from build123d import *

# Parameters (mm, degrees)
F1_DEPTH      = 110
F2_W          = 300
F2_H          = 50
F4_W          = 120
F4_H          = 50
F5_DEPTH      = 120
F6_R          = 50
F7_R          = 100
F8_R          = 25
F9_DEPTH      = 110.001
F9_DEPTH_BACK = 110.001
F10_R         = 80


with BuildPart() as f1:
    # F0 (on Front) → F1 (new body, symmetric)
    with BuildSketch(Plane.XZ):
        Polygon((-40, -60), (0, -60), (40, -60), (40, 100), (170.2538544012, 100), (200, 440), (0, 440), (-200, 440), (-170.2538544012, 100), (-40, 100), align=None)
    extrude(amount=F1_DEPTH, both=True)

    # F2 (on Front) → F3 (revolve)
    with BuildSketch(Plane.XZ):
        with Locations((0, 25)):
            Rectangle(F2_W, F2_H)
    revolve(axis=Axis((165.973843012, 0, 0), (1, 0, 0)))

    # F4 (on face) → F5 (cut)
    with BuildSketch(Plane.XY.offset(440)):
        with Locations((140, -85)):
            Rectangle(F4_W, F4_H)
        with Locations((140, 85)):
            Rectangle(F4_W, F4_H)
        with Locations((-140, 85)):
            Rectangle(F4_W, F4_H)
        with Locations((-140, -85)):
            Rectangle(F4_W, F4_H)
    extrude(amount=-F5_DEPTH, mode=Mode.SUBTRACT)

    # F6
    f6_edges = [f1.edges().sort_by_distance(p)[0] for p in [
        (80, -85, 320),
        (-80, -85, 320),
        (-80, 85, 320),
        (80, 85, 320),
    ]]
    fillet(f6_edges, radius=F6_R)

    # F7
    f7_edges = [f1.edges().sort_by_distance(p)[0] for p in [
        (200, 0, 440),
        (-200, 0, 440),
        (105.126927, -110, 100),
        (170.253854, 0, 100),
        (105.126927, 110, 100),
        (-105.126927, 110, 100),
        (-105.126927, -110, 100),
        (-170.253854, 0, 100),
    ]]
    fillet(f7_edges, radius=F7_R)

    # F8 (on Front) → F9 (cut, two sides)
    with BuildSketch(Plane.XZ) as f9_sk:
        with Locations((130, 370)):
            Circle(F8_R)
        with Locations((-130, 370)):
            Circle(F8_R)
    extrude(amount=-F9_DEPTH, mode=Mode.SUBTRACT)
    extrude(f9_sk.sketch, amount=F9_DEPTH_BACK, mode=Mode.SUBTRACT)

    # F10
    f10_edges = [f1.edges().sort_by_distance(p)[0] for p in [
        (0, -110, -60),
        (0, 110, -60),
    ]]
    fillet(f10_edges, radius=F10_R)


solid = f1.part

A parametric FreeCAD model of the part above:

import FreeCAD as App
import Part
import Sketcher
from FreeCAD import Vector
Q = App.Units.Quantity


def edges_at(feature, points):
    """Names of the edges that pass closest to the given points."""
    edges = feature.Shape.Edges
    near = lambda p: min(range(len(edges)), key=lambda i: edges[i].distToShape(Part.Vertex(*p))[0])
    return sorted({f"Edge{near(p) + 1}" for p in points})

doc = App.newDocument("Part")
body = doc.addObject("PartDesign::Body", "Body")

sketch1 = body.newObject("Sketcher::SketchObject", "Sketch")
sketch1.AttachmentSupport = (doc.getObject("XZ_Plane"), [""])
sketch1.MapMode = "FlatFace"
sketch1.addGeometry(Part.LineSegment(Vector(-40, -60, 0), Vector(40, -60, 0)), False)
sketch1.addGeometry(Part.LineSegment(Vector(40, -60, 0), Vector(40, 100, 0)), False)
sketch1.addGeometry(Part.LineSegment(Vector(40, 100, 0), Vector(170, 100, 0)), False)
sketch1.addGeometry(Part.LineSegment(Vector(170, 100, 0), Vector(200, 440, 0)), False)
sketch1.addGeometry(Part.LineSegment(Vector(200, 440, 0), Vector(-200, 440, 0)), False)
sketch1.addGeometry(Part.LineSegment(Vector(-200, 440, 0), Vector(-170, 100, 0)), False)
sketch1.addGeometry(Part.LineSegment(Vector(-170, 100, 0), Vector(-40, 100, 0)), False)
sketch1.addGeometry(Part.LineSegment(Vector(-40, 100, 0), Vector(-40, -60, 0)), False)
sketch1.addConstraint(Sketcher.Constraint("Coincident", 0, 2, 1, 1))
sketch1.addConstraint(Sketcher.Constraint("Coincident", 1, 2, 2, 1))
sketch1.addConstraint(Sketcher.Constraint("Coincident", 2, 2, 3, 1))
sketch1.addConstraint(Sketcher.Constraint("Coincident", 3, 2, 4, 1))
sketch1.addConstraint(Sketcher.Constraint("Coincident", 4, 2, 5, 1))
sketch1.addConstraint(Sketcher.Constraint("Coincident", 5, 2, 6, 1))
sketch1.addConstraint(Sketcher.Constraint("Coincident", 6, 2, 7, 1))
sketch1.addConstraint(Sketcher.Constraint("Coincident", 7, 2, 0, 1))
sketch1.addConstraint(Sketcher.Constraint("Horizontal", 0))
sketch1.addConstraint(Sketcher.Constraint("Vertical", 1))
sketch1.addConstraint(Sketcher.Constraint("Horizontal", 2))
sketch1.addConstraint(Sketcher.Constraint("Horizontal", 4))
sketch1.addConstraint(Sketcher.Constraint("Horizontal", 6))
sketch1.addConstraint(Sketcher.Constraint("Vertical", 7))
sketch1.addConstraint(Sketcher.Constraint("Symmetric", 2, 2, 5, 2, -2))
sketch1.addConstraint(Sketcher.Constraint("Equal", 2, 6))
sketch1.addConstraint(Sketcher.Constraint("Equal", 3, 5))
sketch1.addConstraint(Sketcher.Constraint("DistanceX", 0, 1, 0, 2, Q("80 mm")))
sketch1.addConstraint(Sketcher.Constraint("DistanceX", 4, 2, 4, 1, Q("400 mm")))
sketch1.addConstraint(Sketcher.Constraint("DistanceY", 1, 1, 1, 2, Q("160 mm")))
sketch1.addConstraint(Sketcher.Constraint("Angle", 3, Q("85 deg")))
sketch1.addConstraint(Sketcher.Constraint("DistanceY", 0, 2, -1, 1, Q("60 mm")))
sketch1.addConstraint(Sketcher.Constraint("DistanceY", -1, 1, 3, 2, Q("440 mm")))
pad1 = body.newObject("PartDesign::Pad", "Pad")
pad1.Profile = sketch1
pad1.Length = 220
pad1.Midplane = True

sketch2 = body.newObject("Sketcher::SketchObject", "Sketch001")
sketch2.AttachmentSupport = (doc.getObject("XZ_Plane"), [""])
sketch2.MapMode = "FlatFace"
sketch2.addGeometry(Part.LineSegment(Vector(-150, 50, 0), Vector(-150, 0, 0)), False)
sketch2.addGeometry(Part.LineSegment(Vector(-150, 0, 0), Vector(150, 0, 0)), False)
sketch2.addGeometry(Part.LineSegment(Vector(150, 0, 0), Vector(150, 50, 0)), False)
sketch2.addGeometry(Part.LineSegment(Vector(150, 50, 0), Vector(-150, 50, 0)), False)
sketch2.addConstraint(Sketcher.Constraint("Coincident", 0, 2, 1, 1))
sketch2.addConstraint(Sketcher.Constraint("Coincident", 1, 2, 2, 1))
sketch2.addConstraint(Sketcher.Constraint("Coincident", 2, 2, 3, 1))
sketch2.addConstraint(Sketcher.Constraint("Coincident", 3, 2, 0, 1))
sketch2.addConstraint(Sketcher.Constraint("Vertical", 0))
sketch2.addConstraint(Sketcher.Constraint("Horizontal", 1))
sketch2.addConstraint(Sketcher.Constraint("Vertical", 2))
sketch2.addConstraint(Sketcher.Constraint("Horizontal", 3))
sketch2.addConstraint(Sketcher.Constraint("Symmetric", 0, 2, 1, 2, -1, 1))
sketch2.addConstraint(Sketcher.Constraint("DistanceX", 1, 1, 1, 2, Q("300 mm")))
sketch2.addConstraint(Sketcher.Constraint("DistanceY", 0, 2, 0, 1, Q("50 mm")))
revolution = body.newObject("PartDesign::Revolution", "Revolution")
revolution.Profile = sketch2
revolution.ReferenceAxis = (sketch2, ["H_Axis"])
revolution.Angle = 360

sketch3 = body.newObject("Sketcher::SketchObject", "Sketch002")
sketch3.AttachmentSupport = (doc.getObject("XY_Plane"), [""])
sketch3.MapMode = "FlatFace"
sketch3.AttachmentOffset = App.Placement(Vector(0, 0, 440), App.Rotation())
sketch3.addGeometry(Part.LineSegment(Vector(80, -60, 0), Vector(80, -110, 0)), False)
sketch3.addGeometry(Part.LineSegment(Vector(80, -110, 0), Vector(200, -110, 0)), False)
sketch3.addGeometry(Part.LineSegment(Vector(200, -110, 0), Vector(200, -60, 0)), False)
sketch3.addGeometry(Part.LineSegment(Vector(200, -60, 0), Vector(80, -60, 0)), False)
sketch3.addGeometry(Part.LineSegment(Vector(80, 110, 0), Vector(80, 60, 0)), False)
sketch3.addGeometry(Part.LineSegment(Vector(80, 60, 0), Vector(200, 60, 0)), False)
sketch3.addGeometry(Part.LineSegment(Vector(200, 60, 0), Vector(200, 110, 0)), False)
sketch3.addGeometry(Part.LineSegment(Vector(200, 110, 0), Vector(80, 110, 0)), False)
sketch3.addGeometry(Part.LineSegment(Vector(-200, 110, 0), Vector(-200, 60, 0)), False)
sketch3.addGeometry(Part.LineSegment(Vector(-200, 60, 0), Vector(-80, 60, 0)), False)
sketch3.addGeometry(Part.LineSegment(Vector(-80, 60, 0), Vector(-80, 110, 0)), False)
sketch3.addGeometry(Part.LineSegment(Vector(-80, 110, 0), Vector(-200, 110, 0)), False)
sketch3.addGeometry(Part.LineSegment(Vector(-200, -60, 0), Vector(-200, -110, 0)), False)
sketch3.addGeometry(Part.LineSegment(Vector(-200, -110, 0), Vector(-80, -110, 0)), False)
sketch3.addGeometry(Part.LineSegment(Vector(-80, -110, 0), Vector(-80, -60, 0)), False)
sketch3.addGeometry(Part.LineSegment(Vector(-80, -60, 0), Vector(-200, -60, 0)), False)
sketch3.addConstraint(Sketcher.Constraint("Coincident", 0, 2, 1, 1))
sketch3.addConstraint(Sketcher.Constraint("Coincident", 1, 2, 2, 1))
sketch3.addConstraint(Sketcher.Constraint("Coincident", 2, 2, 3, 1))
sketch3.addConstraint(Sketcher.Constraint("Coincident", 3, 2, 0, 1))
sketch3.addConstraint(Sketcher.Constraint("Coincident", 4, 2, 5, 1))
sketch3.addConstraint(Sketcher.Constraint("Coincident", 5, 2, 6, 1))
sketch3.addConstraint(Sketcher.Constraint("Coincident", 6, 2, 7, 1))
sketch3.addConstraint(Sketcher.Constraint("Coincident", 7, 2, 4, 1))
sketch3.addConstraint(Sketcher.Constraint("Coincident", 8, 2, 9, 1))
sketch3.addConstraint(Sketcher.Constraint("Coincident", 9, 2, 10, 1))
sketch3.addConstraint(Sketcher.Constraint("Coincident", 10, 2, 11, 1))
sketch3.addConstraint(Sketcher.Constraint("Coincident", 11, 2, 8, 1))
sketch3.addConstraint(Sketcher.Constraint("Coincident", 12, 2, 13, 1))
sketch3.addConstraint(Sketcher.Constraint("Coincident", 13, 2, 14, 1))
sketch3.addConstraint(Sketcher.Constraint("Coincident", 14, 2, 15, 1))
sketch3.addConstraint(Sketcher.Constraint("Coincident", 15, 2, 12, 1))
sketch3.addConstraint(Sketcher.Constraint("Vertical", 0))
sketch3.addConstraint(Sketcher.Constraint("Horizontal", 1))
sketch3.addConstraint(Sketcher.Constraint("Vertical", 2))
sketch3.addConstraint(Sketcher.Constraint("Horizontal", 3))
sketch3.addConstraint(Sketcher.Constraint("Vertical", 4))
sketch3.addConstraint(Sketcher.Constraint("Horizontal", 5))
sketch3.addConstraint(Sketcher.Constraint("Vertical", 6))
sketch3.addConstraint(Sketcher.Constraint("Horizontal", 7))
sketch3.addConstraint(Sketcher.Constraint("Vertical", 8))
sketch3.addConstraint(Sketcher.Constraint("Horizontal", 9))
sketch3.addConstraint(Sketcher.Constraint("Vertical", 10))
sketch3.addConstraint(Sketcher.Constraint("Horizontal", 11))
sketch3.addConstraint(Sketcher.Constraint("Vertical", 12))
sketch3.addConstraint(Sketcher.Constraint("Horizontal", 13))
sketch3.addConstraint(Sketcher.Constraint("Vertical", 14))
sketch3.addConstraint(Sketcher.Constraint("Horizontal", 15))
sketch3.addConstraint(Sketcher.Constraint("Symmetric", 2, 2, 8, 2, -1, 1))
sketch3.addConstraint(Sketcher.Constraint("Symmetric", 0, 2, 10, 2, -1, 1))
sketch3.addConstraint(Sketcher.Constraint("Symmetric", 6, 2, 12, 2, -1, 1))
sketch3.addConstraint(Sketcher.Constraint("Symmetric", 4, 2, 14, 2, -1, 1))
sketch3.addConstraint(Sketcher.Constraint("Symmetric", 5, 2, 8, 2, -2))
sketch3.addConstraint(Sketcher.Constraint("Symmetric", 7, 2, 10, 2, -2))
sketch3.addConstraint(Sketcher.Constraint("DistanceX", 1, 1, 1, 2, Q("120 mm")))
sketch3.addConstraint(Sketcher.Constraint("DistanceY", 0, 2, 0, 1, Q("50 mm")))
sketch3.addConstraint(Sketcher.Constraint("DistanceX", -1, 1, 0, 2, Q("80 mm")))
sketch3.addConstraint(Sketcher.Constraint("DistanceY", 0, 2, -1, 1, Q("110 mm")))
pocket1 = body.newObject("PartDesign::Pocket", "Pocket")
pocket1.Profile = sketch3
pocket1.Length = 120
doc.recompute()

fillet = body.newObject("PartDesign::Fillet", "Fillet")
fillet.Base = (pocket1, edges_at(pocket1, [
    (80, -85, 320),
    (-80, -85, 320),
    (-80, 85, 320),
    (80, 85, 320),
]))
fillet.Radius = 50
doc.recompute()

fillet2 = body.newObject("PartDesign::Fillet", "Fillet001")
fillet2.Base = (fillet, edges_at(fillet, [
    (200, 0, 440),
    (-200, 0, 440),
    (105.127, -110, 100),
    (170.254, 0, 100),
    (105.127, 110, 100),
    (-105.127, 110, 100),
    (-105.127, -110, 100),
    (-170.254, 0, 100),
]))
fillet2.Radius = 100

sketch4 = body.newObject("Sketcher::SketchObject", "Sketch003")
sketch4.AttachmentSupport = (doc.getObject("XZ_Plane"), [""])
sketch4.MapMode = "FlatFace"
sketch4.addGeometry(Part.Circle(Vector(130, 370, 0), Vector(0, 0, 1), 25), False)
sketch4.addGeometry(Part.Circle(Vector(-130, 370, 0), Vector(0, 0, 1), 25), False)
sketch4.addConstraint(Sketcher.Constraint("Equal", 0, 1))
sketch4.addConstraint(Sketcher.Constraint("Symmetric", 0, 3, 1, 3, -2))
sketch4.addConstraint(Sketcher.Constraint("Diameter", 0, Q("50 mm")))
sketch4.addConstraint(Sketcher.Constraint("DistanceX", -1, 1, 0, 3, Q("130 mm")))
sketch4.addConstraint(Sketcher.Constraint("DistanceY", -1, 1, 0, 3, Q("370 mm")))
pocket2 = body.newObject("PartDesign::Pocket", "Pocket001")
pocket2.Profile = sketch4
pocket2.Type = "ThroughAll"
pocket2.Midplane = True
doc.recompute()

fillet3 = body.newObject("PartDesign::Fillet", "Fillet002")
fillet3.Base = (pocket2, edges_at(pocket2, [(0, -110, -60), (0, 110, -60)]))
fillet3.Radius = 80

doc.recompute()
